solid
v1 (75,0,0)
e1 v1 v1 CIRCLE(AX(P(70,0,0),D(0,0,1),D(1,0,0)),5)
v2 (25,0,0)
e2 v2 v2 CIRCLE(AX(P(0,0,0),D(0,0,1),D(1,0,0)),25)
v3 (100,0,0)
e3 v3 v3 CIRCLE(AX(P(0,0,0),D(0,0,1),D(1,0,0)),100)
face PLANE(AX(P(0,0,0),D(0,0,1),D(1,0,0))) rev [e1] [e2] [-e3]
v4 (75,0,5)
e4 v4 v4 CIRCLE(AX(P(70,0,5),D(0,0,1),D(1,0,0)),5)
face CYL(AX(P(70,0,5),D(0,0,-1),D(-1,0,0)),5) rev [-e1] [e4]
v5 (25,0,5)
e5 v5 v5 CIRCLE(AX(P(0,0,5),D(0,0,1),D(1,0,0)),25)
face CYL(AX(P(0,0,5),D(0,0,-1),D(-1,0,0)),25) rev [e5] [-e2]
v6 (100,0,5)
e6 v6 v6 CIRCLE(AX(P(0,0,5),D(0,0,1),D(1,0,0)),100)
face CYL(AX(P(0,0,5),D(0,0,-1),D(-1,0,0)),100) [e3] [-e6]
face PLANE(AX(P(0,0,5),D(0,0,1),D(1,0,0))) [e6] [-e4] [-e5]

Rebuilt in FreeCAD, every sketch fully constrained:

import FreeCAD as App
import Part
import Sketcher
from FreeCAD import Vector

doc = App.newDocument("Part")
params = doc.addObject("Spreadsheet::Sheet", "Params")
for row, (alias, value) in enumerate([
    ("sketch1_diameter", "200 mm"),
    ("sketch1_diameter2", "50 mm"),
    ("sketch1_diameter3", "10 mm"),
    ("pad1_length", "5 mm"),
], start=1):
    params.set(f"A{row}", alias)
    params.set(f"B{row}", "=" + value)
    params.setAlias(f"B{row}", alias)

body = doc.addObject("PartDesign::Body", "Body")

sketch1 = body.newObject("Sketcher::SketchObject", "Sketch")
sketch1.AttachmentSupport = (doc.getObject("XY_Plane"), [""])
sketch1.MapMode = "FlatFace"
sketch1.addGeometry([
    Part.Circle(Vector(0, 0, 0), Vector(0, 0, 1), 100),
    Part.Circle(Vector(0, 0, 0), Vector(0, 0, 1), 25),
    Part.Circle(Vector(70, 0, 0), Vector(0, 0, 1), 5),
], False)
sketch1.addConstraint([
    Sketcher.Constraint("Coincident", 0, 3, -1, 1),
    Sketcher.Constraint("Coincident", 1, 3, -1, 1),
    Sketcher.Constraint("PointOnObject", 2, 3, -1),
    Sketcher.Constraint("Diameter", 0, 200.0),
    Sketcher.Constraint("Diameter", 1, 50.0),
    Sketcher.Constraint("Diameter", 2, 10.0),
    Sketcher.Constraint("DistanceX", -1, 1, 2, 3, 70.0),
])
sketch1.setExpression("Constraints[3]", "Params.sketch1_diameter")
sketch1.setExpression("Constraints[4]", "Params.sketch1_diameter2")
sketch1.setExpression("Constraints[5]", "Params.sketch1_diameter3")
pad1 = body.newObject("PartDesign::Pad", "Pad")
pad1.Profile = sketch1
pad1.setExpression("Length", "Params.pad1_length")

doc.recompute()
